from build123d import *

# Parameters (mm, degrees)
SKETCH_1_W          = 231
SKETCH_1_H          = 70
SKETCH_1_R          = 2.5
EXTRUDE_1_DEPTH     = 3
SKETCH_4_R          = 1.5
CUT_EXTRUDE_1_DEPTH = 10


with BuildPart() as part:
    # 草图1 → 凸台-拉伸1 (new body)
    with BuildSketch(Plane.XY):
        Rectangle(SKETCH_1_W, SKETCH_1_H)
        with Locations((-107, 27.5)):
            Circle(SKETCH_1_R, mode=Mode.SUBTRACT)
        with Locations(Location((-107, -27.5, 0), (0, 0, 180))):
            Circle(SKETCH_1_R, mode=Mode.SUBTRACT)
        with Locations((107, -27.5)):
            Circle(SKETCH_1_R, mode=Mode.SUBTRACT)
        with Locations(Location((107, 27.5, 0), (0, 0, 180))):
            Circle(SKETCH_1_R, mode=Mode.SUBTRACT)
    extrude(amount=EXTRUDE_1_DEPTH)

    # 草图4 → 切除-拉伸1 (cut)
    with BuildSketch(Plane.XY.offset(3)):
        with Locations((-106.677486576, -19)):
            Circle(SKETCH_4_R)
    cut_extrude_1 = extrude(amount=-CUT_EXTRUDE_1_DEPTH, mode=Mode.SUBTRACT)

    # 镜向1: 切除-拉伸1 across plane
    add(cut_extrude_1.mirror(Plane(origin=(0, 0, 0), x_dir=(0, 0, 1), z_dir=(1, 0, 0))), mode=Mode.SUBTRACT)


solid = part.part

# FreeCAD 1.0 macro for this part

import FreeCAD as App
import Part
import Sketcher
Q = App.Units.Quantity

doc = App.newDocument("Part")
body = doc.addObject("PartDesign::Body", "Body")

sketch1 = body.newObject("Sketcher::SketchObject", "Sketch")
sketch1.AttachmentSupport = (doc.getObject("XY_Plane"), [""])
sketch1.MapMode = "FlatFace"
sketch1.addGeometry([
    Part.LineSegment(App.Vector(-115.5, 35, 0), App.Vector(-115.5, -35, 0)),
    Part.LineSegment(App.Vector(-115.5, -35, 0), App.Vector(115.5, -35, 0)),
    Part.LineSegment(App.Vector(115.5, -35, 0), App.Vector(115.5, 35, 0)),
    Part.LineSegment(App.Vector(115.5, 35, 0), App.Vector(-115.5, 35, 0)),
    Part.Circle(App.Vector(-107, -27.5, 0), App.Vector(0, 0, 1), 2.5),
    Part.Circle(App.Vector(107, -27.5, 0), App.Vector(0, 0, 1), 2.5),
    Part.Circle(App.Vector(-107, 27.5, 0), App.Vector(0, 0, 1), 2.5),
    Part.Circle(App.Vector(107, 27.5, 0), App.Vector(0, 0, 1), 2.5),
], False)
sketch1.addConstraint([
    Sketcher.Constraint("Coincident", 0, 2, 1, 1),
    Sketcher.Constraint("Coincident", 1, 2, 2, 1),
    Sketcher.Constraint("Coincident", 2, 2, 3, 1),
    Sketcher.Constraint("Coincident", 3, 2, 0, 1),
    Sketcher.Constraint("Vertical", 0),
    Sketcher.Constraint("Horizontal", 1),
    Sketcher.Constraint("Vertical", 2),
    Sketcher.Constraint("Horizontal", 3),
    Sketcher.Constraint("Equal", 4, 5),
    Sketcher.Constraint("Equal", 5, 6),
    Sketcher.Constraint("Equal", 6, 7),
    Sketcher.Constraint("Symmetric", 5, 3, 6, 3, -1, 1),
    Sketcher.Constraint("Symmetric", 4, 3, 7, 3, -1, 1),
    Sketcher.Constraint("Symmetric", 0, 2, 2, 2, -1, 1),
    Sketcher.Constraint("Symmetric", 4, 3, 5, 3, -2),
    Sketcher.Constraint("Diameter", 4, Q("5 mm")),
    Sketcher.Constraint("DistanceX", 1, 1, 1, 2, Q("231 mm")),
    Sketcher.Constraint("DistanceY", 0, 2, 0, 1, Q("70 mm")),
    Sketcher.Constraint("DistanceX", 4, 3, -1, 1, Q("107 mm")),
    Sketcher.Constraint("DistanceY", 4, 3, 6, 3, Q("55 mm")),
])
pad1 = body.newObject("PartDesign::Pad", "Pad")
pad1.Profile = sketch1
pad1.Length = 3

sketch2 = body.newObject("Sketcher::SketchObject", "Sketch001")
sketch2.AttachmentSupport = (doc.getObject("XY_Plane"), [""])
sketch2.MapMode = "FlatFace"
sketch2.AttachmentOffset = App.Placement(App.Vector(0, 0, 3), App.Rotation())
sketch2.addGeometry(Part.Circle(App.Vector(-106.677487, -19, 0), App.Vector(0, 0, 1), 1.5), False)
sketch2.addConstraint([
    Sketcher.Constraint("Diameter", 0, Q("3 mm")),
    Sketcher.Constraint("DistanceY", 0, 3, -1, 1, Q("19 mm")),
    Sketcher.Constraint("DistanceX", 0, 3, -1, 1, Q("106.677487 mm")),
])
pocket1 = body.newObject("PartDesign::Pocket", "Pocket")
pocket1.Profile = sketch2
pocket1.Length = 10
doc.recompute()

mirrored = body.newObject("PartDesign::Mirrored", "Mirrored")
mirrored.Originals = [pocket1]
mirrored.MirrorPlane = (doc.getObject("YZ_Plane"), [""])
body.Tip = mirrored

doc.recompute()
